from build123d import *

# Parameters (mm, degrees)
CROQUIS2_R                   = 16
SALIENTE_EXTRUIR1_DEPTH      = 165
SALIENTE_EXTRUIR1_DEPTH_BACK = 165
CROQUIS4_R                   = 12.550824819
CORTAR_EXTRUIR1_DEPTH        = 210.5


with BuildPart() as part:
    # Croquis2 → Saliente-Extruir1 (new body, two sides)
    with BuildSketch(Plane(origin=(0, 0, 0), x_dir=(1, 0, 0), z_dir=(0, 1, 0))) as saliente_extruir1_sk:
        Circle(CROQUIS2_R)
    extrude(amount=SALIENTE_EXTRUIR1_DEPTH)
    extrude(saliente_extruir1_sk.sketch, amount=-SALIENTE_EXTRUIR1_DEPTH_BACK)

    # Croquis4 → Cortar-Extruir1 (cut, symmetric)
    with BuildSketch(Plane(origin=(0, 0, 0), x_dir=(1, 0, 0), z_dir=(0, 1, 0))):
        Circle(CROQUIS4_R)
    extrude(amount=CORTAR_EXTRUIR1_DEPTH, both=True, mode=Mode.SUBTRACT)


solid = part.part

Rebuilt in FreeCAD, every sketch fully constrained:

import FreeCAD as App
import Part
import Sketcher
from FreeCAD import Vector
Q = App.Units.Quantity

doc = App.newDocument("Part")
body = doc.addObject("PartDesign::Body", "Body")

sketch1 = body.newObject("Sketcher::SketchObject", "Sketch")
sketch1.AttachmentSupport = (doc.getObject("XZ_Plane"), [""])
sketch1.MapMode = "FlatFace"
sketch1.addGeometry(Part.Circle(Vector(0, 0, 0), Vector(0, 0, 1), 16), False)
sketch1.addConstraint([
    Sketcher.Constraint("Coincident", 0, 3, -1, 1),
    Sketcher.Constraint("Diameter", 0, Q("32 mm")),
])
pad1 = body.newObject("PartDesign::Pad", "Pad")
pad1.Profile = sketch1
pad1.Type = "TwoLengths"
pad1.Length = 165
pad1.Length2 = 165
pad1.Reversed = True

sketch2 = body.newObject("Sketcher::SketchObject", "Sketch001")
sketch2.AttachmentSupport = (doc.getObject("XZ_Plane"), [""])
sketch2.MapMode = "FlatFace"
sketch2.addGeometry(Part.Circle(Vector(0, 0, 0), Vector(0, 0, 1), 13), False)
sketch2.addConstraint([
    Sketcher.Constraint("Coincident", 0, 3, -1, 1),
    Sketcher.Constraint("Diameter", 0, Q("25.10165 mm")),
])
pocket1 = body.newObject("PartDesign::Pocket", "Pocket")
pocket1.Profile = sketch2
pocket1.Length = 421
pocket1.Midplane = True

doc.recompute()
